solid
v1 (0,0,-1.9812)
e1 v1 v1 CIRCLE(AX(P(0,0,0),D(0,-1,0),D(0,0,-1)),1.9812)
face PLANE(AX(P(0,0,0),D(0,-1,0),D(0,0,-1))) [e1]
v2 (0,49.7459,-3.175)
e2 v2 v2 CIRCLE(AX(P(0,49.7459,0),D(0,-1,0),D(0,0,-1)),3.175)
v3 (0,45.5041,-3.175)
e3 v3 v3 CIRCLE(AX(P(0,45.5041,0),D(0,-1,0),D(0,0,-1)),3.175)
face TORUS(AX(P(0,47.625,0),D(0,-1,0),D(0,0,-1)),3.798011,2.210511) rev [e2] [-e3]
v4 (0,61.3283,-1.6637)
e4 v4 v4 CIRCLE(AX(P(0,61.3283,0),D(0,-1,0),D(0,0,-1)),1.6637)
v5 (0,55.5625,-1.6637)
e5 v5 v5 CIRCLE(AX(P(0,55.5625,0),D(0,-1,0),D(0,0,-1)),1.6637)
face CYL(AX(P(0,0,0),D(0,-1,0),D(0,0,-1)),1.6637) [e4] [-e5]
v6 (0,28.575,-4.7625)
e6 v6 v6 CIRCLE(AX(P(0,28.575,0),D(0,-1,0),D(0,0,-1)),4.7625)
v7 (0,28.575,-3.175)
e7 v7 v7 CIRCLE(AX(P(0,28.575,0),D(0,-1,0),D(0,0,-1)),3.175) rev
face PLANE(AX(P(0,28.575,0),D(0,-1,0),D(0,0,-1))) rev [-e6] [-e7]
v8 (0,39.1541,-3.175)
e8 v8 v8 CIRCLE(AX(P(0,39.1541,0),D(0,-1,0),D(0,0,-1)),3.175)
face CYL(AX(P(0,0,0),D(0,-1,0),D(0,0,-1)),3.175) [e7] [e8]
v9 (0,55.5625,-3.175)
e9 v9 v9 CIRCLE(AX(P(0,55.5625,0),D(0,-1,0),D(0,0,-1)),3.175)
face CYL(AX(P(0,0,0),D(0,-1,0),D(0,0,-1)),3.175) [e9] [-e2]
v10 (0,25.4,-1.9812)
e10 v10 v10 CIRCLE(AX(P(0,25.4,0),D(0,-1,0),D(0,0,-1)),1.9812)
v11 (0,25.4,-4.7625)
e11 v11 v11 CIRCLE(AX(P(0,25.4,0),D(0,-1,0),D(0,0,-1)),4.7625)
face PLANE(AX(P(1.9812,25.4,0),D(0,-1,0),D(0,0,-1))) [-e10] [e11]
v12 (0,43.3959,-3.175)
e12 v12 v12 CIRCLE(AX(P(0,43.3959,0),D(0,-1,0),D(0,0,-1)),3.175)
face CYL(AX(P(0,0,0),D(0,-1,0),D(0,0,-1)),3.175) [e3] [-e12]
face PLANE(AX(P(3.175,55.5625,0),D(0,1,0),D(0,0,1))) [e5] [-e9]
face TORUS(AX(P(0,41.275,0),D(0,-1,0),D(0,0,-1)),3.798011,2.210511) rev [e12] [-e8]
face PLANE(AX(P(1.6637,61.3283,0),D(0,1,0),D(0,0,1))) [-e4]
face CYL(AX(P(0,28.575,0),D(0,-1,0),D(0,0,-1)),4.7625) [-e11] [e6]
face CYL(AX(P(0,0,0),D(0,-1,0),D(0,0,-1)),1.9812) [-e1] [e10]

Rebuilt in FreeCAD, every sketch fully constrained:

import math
import FreeCAD as App
import Part
import Sketcher
Q = App.Units.Quantity


def add_polygon(sketch, points):
    """Adds a closed chain of lines whose ends are joined by coincident constraints."""
    first, n = sketch.GeometryCount, len(points)
    for a, b in zip(points, points[1:] + points[:1]):
        sketch.addGeometry(Part.LineSegment(App.Vector(*a, 0), App.Vector(*b, 0)), False)
    for i in range(n):
        sketch.addConstraint(Sketcher.Constraint("Coincident", first + i, 2, first + (i + 1) % n, 1))

doc = App.newDocument("Part")
body = doc.addObject("PartDesign::Body", "Body")

sketch1 = body.newObject("Sketcher::SketchObject", "Sketch")
sketch1.AttachmentSupport = (doc.getObject("XY_Plane"), [""])
sketch1.MapMode = "FlatFace"
add_polygon(sketch1, [(0, 0), (1.9812, 0), (1.9812, 25.4), (3.175, 25.4), (3.175, 55.5625), (1.6637, 55.5625), (1.6637, 61.3283), (0, 61.3283)])
sketch1.addConstraint([
    Sketcher.Constraint("Horizontal", 0),
    Sketcher.Constraint("Vertical", 1),
    Sketcher.Constraint("Horizontal", 2),
    Sketcher.Constraint("Vertical", 3),
    Sketcher.Constraint("Horizontal", 4),
    Sketcher.Constraint("Vertical", 5),
    Sketcher.Constraint("Horizontal", 6),
    Sketcher.Constraint("Vertical", 7),
    Sketcher.Constraint("Coincident", 7, 2, -1, 1),
    Sketcher.Constraint("DistanceY", 1, 1, 1, 2, Q("1 in")),
    Sketcher.Constraint("DistanceX", 0, 1, 0, 2, Q("0.078 in")),
    Sketcher.Constraint("DistanceX", 2, 1, 2, 2, Q("0.047 in")),
    Sketcher.Constraint("DistanceY", 3, 1, 3, 2, Q("1.1875 in")),
    Sketcher.Constraint("DistanceY", 5, 1, 5, 2, Q("0.227 in")),
    Sketcher.Constraint("DistanceX", 4, 2, 4, 1, Q("0.0595 in")),
])
revolution = body.newObject("PartDesign::Revolution", "Revolution")
revolution.Profile = sketch1
revolution.ReferenceAxis = (sketch1, ["V_Axis"])
revolution.Angle = 360

sketch2 = body.newObject("Sketcher::SketchObject", "Sketch001")
sketch2.AttachmentSupport = (doc.getObject("XZ_Plane"), [""])
sketch2.MapMode = "FlatFace"
sketch2.AttachmentOffset = App.Placement(App.Vector(0, 0, -1 * 25.4), App.Rotation())
sketch2.addGeometry(Part.Circle(App.Vector(0, 0, 0), App.Vector(0, 0, 1), 4.7625), False)
sketch2.addConstraint([
    Sketcher.Constraint("Coincident", 0, 3, -1, 1),
    Sketcher.Constraint("Diameter", 0, Q("0.375 in")),
])
pad1 = body.newObject("PartDesign::Pad", "Pad")
pad1.Profile = sketch2
pad1.Length = Q("0.125 in")
pad1.Reversed = True

sketch3 = body.newObject("Sketcher::SketchObject", "Sketch002")
sketch3.AttachmentSupport = (doc.getObject("YZ_Plane"), [""])
sketch3.MapMode = "FlatFace"
sketch3.addGeometry([
    Part.LineSegment(App.Vector(39.1541, -3.175, 0), App.Vector(43.3959, -3.175, 0)),
    Part.ArcOfCircle(Part.Circle(App.Vector(41.275, -3.798011, 0), App.Vector(0, 0, 1), 2.210511), math.radians(16.370072), math.radians(163.629928)),
], False)
sketch3.addConstraint([
    Sketcher.Constraint("Coincident", 0, 1, 1, 2),
    Sketcher.Constraint("Coincident", 1, 1, 0, 2),
    Sketcher.Constraint("Horizontal", 0),
    Sketcher.Constraint("DistanceX", 0, 1, 0, 2, Q("0.167 in")),
    Sketcher.Constraint("DistanceX", -1, 1, 1, 3, Q("1.625 in")),
    Sketcher.Constraint("DistanceY", 0, 1, -1, 1, Q("0.125 in")),
    Sketcher.Constraint("Radius", 1, 2.210511),
])
groove = body.newObject("PartDesign::Groove", "Groove")
groove.Profile = sketch3
groove.ReferenceAxis = (sketch3, ["H_Axis"])
groove.Angle = 360
doc.recompute()

linearpattern = body.newObject("PartDesign::LinearPattern", "LinearPattern")
linearpattern.Originals = [groove]
linearpattern.Direction = (doc.getObject("Y_Axis"), [""])
linearpattern.Mode = "offset"
linearpattern.Offset = Q("0.25 in")
linearpattern.Occurrences = 2
body.Tip = linearpattern

doc.recompute()
